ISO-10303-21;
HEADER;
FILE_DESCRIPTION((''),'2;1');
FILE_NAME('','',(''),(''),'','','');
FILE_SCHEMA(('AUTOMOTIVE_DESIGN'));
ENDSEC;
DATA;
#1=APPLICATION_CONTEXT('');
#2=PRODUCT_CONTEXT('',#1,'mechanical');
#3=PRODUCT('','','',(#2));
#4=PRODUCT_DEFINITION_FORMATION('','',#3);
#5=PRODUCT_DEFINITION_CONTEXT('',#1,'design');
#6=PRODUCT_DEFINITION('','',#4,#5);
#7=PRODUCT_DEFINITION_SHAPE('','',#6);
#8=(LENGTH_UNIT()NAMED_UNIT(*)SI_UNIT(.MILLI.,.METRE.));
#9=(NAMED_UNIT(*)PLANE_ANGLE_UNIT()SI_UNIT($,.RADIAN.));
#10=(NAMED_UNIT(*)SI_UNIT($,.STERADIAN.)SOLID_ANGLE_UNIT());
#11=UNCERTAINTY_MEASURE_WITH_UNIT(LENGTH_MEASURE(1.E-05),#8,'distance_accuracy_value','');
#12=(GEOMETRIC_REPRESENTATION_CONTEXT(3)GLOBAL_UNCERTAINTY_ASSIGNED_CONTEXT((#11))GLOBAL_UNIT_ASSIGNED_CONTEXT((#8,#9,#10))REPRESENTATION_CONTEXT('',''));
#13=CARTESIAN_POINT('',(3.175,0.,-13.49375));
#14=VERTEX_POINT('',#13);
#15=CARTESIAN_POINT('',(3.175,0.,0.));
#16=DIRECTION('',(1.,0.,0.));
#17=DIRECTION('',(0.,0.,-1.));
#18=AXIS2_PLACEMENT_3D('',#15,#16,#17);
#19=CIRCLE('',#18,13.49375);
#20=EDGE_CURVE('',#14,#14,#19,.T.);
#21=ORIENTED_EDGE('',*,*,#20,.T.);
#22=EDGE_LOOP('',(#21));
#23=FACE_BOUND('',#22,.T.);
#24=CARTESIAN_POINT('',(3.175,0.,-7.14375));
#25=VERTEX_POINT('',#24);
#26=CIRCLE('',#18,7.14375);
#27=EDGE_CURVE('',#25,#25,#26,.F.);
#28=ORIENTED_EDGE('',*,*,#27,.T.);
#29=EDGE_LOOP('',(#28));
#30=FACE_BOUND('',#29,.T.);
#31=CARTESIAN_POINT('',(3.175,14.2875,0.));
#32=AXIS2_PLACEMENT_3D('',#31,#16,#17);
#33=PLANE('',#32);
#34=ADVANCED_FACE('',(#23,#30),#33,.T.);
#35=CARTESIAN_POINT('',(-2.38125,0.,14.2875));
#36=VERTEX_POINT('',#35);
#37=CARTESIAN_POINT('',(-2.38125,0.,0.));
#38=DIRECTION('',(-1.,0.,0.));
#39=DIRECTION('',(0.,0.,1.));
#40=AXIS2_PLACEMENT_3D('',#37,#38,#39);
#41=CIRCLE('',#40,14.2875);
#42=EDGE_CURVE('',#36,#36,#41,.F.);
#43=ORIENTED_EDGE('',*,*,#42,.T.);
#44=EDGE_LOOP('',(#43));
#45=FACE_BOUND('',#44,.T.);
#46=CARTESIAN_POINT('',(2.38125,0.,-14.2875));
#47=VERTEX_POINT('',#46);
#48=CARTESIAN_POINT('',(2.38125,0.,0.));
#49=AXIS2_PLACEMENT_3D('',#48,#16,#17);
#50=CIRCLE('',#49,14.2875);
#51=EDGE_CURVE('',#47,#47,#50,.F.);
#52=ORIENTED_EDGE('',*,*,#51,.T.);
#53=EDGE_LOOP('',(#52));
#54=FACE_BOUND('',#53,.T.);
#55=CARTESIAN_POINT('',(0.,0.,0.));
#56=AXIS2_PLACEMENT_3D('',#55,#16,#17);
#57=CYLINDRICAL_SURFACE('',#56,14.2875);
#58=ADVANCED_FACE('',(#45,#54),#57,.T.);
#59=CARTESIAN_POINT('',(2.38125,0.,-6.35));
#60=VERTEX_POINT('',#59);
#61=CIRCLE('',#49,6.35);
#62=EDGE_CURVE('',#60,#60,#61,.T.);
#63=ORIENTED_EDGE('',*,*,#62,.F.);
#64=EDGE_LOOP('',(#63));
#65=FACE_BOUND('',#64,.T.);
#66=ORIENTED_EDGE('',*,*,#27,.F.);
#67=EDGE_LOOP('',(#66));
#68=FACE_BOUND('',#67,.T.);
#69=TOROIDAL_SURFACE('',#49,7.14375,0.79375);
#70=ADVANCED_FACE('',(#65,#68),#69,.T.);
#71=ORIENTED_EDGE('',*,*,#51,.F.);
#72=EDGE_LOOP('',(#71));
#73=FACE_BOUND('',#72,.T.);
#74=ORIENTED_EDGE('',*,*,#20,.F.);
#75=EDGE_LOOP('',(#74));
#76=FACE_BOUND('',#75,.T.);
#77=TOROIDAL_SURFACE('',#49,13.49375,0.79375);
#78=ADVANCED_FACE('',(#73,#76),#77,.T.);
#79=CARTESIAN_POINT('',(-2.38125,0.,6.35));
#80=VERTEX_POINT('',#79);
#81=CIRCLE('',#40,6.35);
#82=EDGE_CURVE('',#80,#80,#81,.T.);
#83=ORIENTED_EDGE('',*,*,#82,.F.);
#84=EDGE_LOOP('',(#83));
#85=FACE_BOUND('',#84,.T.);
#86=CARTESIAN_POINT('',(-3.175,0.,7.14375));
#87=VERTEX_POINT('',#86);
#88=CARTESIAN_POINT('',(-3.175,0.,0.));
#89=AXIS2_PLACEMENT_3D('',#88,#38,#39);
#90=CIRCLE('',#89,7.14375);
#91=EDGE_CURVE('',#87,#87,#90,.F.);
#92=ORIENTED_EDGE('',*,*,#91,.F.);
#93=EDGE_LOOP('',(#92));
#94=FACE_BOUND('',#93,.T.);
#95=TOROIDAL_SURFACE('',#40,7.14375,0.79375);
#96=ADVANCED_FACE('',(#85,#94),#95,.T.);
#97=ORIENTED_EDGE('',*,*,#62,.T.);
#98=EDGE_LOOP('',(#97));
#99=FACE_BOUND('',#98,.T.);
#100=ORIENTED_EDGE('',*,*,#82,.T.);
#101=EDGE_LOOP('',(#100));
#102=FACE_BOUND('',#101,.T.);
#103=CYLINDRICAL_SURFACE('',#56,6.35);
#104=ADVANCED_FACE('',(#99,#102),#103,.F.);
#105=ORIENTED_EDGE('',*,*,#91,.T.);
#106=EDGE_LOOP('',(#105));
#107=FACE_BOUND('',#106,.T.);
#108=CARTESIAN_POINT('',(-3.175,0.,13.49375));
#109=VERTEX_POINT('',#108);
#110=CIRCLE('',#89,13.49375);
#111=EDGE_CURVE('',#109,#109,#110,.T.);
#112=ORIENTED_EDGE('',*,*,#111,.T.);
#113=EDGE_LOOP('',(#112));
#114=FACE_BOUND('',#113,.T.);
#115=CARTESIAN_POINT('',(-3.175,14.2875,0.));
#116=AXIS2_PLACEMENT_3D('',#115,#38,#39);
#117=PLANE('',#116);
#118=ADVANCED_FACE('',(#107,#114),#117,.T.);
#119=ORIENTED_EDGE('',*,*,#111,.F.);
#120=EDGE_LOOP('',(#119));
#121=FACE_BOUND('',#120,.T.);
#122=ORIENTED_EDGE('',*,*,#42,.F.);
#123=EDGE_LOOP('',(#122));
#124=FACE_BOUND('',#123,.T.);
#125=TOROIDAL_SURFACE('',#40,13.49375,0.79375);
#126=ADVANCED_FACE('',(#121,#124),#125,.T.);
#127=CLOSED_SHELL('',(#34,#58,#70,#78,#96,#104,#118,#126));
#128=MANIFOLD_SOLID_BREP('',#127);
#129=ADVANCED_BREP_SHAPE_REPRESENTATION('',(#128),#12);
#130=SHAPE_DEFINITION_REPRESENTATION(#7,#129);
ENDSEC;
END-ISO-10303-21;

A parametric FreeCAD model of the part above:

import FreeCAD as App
import Part
import Sketcher
from FreeCAD import Vector
Q = App.Units.Quantity


def edges_at(feature, points):
    """Names of the edges that pass closest to the given points."""
    edges = feature.Shape.Edges
    near = lambda p: min(range(len(edges)), key=lambda i: edges[i].distToShape(Part.Vertex(*p))[0])
    return sorted({f"Edge{near(p) + 1}" for p in points})

doc = App.newDocument("Part")
body = doc.addObject("PartDesign::Body", "Body")

# Sketch on XY plane
sketch1 = body.newObject("Sketcher::SketchObject", "Sketch")
sketch1.AttachmentSupport = (doc.getObject("XY_Plane"), [""])
sketch1.MapMode = "FlatFace"
sketch1.addGeometry([
    Part.LineSegment(Vector(-3.175, 14.2875, 0), Vector(-3.175, 6.35, 0)),
    Part.LineSegment(Vector(-3.175, 6.35, 0), Vector(3.175, 6.35, 0)),
    Part.LineSegment(Vector(3.175, 6.35, 0), Vector(3.175, 14.2875, 0)),
    Part.LineSegment(Vector(3.175, 14.2875, 0), Vector(-3.175, 14.2875, 0)),
], False)
sketch1.addConstraint([
    Sketcher.Constraint("Coincident", 0, 2, 1, 1),
    Sketcher.Constraint("Coincident", 1, 2, 2, 1),
    Sketcher.Constraint("Coincident", 2, 2, 3, 1),
    Sketcher.Constraint("Coincident", 3, 2, 0, 1),
    Sketcher.Constraint("Vertical", 0),
    Sketcher.Constraint("Horizontal", 1),
    Sketcher.Constraint("Vertical", 2),
    Sketcher.Constraint("Horizontal", 3),
    Sketcher.Constraint("DistanceX", 1, 1, 1, 2, Q("0.25 in")),
    Sketcher.Constraint("DistanceY", 0, 2, 0, 1, Q("0.3125 in")),
    Sketcher.Constraint("DistanceY", -1, 1, 0, 2, Q("0.25 in")),
    Sketcher.Constraint("DistanceX", 0, 2, -1, 1, Q("0.125 in")),
])
revolution = body.newObject("PartDesign::Revolution", "Revolution")
revolution.Profile = sketch1
revolution.ReferenceAxis = (sketch1, ["H_Axis"])
revolution.Angle = 360
doc.recompute()

fillet = body.newObject("PartDesign::Fillet", "Fillet")
fillet.Base = (revolution, edges_at(revolution, [
    (-3.175, 0, 14.287),
    (3.175, 0, 14.287),
    (3.175, 0, 6.35),
    (-3.175, 0, 6.35),
]))
fillet.Radius = Q("0.03125 in")

doc.recompute()
